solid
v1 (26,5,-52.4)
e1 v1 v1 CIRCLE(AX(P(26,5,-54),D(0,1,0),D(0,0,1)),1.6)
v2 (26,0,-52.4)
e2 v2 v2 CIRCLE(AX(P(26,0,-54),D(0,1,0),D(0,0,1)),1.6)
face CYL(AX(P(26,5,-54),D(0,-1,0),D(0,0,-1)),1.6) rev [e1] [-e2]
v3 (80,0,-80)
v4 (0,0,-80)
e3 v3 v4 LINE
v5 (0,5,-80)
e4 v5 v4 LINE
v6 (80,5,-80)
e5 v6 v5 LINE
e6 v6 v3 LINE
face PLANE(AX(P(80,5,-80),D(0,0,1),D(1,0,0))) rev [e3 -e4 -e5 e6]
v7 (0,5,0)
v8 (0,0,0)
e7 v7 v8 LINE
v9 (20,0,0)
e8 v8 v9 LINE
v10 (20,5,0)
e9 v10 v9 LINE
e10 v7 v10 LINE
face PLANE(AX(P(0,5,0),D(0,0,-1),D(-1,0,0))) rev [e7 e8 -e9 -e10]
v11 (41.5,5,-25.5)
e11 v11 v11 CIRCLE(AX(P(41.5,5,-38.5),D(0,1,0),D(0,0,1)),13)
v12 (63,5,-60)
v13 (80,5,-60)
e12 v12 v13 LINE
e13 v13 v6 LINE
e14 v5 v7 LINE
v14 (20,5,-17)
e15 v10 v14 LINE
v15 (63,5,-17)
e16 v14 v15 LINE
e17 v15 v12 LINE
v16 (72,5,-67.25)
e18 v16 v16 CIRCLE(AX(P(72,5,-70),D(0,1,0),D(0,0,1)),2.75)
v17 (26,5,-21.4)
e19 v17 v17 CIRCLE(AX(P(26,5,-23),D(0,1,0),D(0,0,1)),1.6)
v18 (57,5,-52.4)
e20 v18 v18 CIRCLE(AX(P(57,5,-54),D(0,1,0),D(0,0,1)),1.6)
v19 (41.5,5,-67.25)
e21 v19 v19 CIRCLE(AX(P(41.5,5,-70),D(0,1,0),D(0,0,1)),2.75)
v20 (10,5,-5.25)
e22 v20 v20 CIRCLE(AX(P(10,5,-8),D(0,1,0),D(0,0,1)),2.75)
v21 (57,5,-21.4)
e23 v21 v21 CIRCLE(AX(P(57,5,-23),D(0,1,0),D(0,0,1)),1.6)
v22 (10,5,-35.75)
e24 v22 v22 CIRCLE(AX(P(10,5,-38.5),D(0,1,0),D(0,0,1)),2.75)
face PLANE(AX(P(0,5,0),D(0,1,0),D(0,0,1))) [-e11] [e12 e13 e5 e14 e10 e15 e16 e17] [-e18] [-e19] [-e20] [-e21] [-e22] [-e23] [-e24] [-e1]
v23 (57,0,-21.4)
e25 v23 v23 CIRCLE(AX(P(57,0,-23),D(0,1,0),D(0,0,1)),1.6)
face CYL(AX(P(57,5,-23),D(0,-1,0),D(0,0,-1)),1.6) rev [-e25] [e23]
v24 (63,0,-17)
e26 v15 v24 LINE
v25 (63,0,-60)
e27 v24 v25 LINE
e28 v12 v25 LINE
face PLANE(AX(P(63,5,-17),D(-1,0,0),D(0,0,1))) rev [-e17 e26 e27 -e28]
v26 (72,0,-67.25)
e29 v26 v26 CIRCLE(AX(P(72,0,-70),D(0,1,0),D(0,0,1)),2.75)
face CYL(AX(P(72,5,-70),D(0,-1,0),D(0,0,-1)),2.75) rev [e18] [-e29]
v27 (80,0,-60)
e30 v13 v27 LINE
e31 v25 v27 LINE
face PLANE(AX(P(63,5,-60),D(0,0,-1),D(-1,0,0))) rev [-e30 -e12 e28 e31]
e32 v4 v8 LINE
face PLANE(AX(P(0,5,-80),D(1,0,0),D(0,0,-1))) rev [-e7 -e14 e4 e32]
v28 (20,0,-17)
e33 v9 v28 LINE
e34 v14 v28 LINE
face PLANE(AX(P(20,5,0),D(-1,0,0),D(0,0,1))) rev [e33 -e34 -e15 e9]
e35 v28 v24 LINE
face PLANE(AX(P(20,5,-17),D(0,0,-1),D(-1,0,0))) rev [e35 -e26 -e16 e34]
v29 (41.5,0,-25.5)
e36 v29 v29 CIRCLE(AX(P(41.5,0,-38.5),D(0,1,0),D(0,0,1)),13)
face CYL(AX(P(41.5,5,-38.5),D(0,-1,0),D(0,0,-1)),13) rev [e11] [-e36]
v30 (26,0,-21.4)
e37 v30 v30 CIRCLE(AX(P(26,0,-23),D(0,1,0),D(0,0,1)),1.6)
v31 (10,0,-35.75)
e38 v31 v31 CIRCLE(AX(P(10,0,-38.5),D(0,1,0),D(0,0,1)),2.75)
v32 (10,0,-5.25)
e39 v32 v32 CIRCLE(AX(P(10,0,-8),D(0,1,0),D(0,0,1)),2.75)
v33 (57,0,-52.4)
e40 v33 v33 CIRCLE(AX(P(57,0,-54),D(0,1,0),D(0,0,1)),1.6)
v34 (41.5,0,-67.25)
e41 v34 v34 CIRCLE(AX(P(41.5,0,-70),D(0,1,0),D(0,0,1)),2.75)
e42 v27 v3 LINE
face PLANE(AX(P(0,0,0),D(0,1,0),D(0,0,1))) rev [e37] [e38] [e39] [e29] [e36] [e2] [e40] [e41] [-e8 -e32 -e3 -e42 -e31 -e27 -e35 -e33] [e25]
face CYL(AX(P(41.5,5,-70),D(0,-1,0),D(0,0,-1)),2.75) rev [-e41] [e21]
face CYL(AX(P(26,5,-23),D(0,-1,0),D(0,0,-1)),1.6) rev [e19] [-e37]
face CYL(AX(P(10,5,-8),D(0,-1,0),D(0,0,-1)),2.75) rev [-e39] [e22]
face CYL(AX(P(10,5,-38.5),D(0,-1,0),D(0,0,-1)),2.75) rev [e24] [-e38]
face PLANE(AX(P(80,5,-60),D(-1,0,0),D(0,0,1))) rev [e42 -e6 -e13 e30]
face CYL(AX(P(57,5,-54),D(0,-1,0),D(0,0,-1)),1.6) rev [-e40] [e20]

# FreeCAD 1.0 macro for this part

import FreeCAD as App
import Part
import Sketcher
Q = App.Units.Quantity

doc = App.newDocument("Part")
params = doc.addObject("Spreadsheet::Sheet", "Params")
for row, (alias, value) in enumerate([
    ("sketch1_diameter", "26 mm"),
    ("sketch1_diameter2", "5.5 mm"),
    ("sketch1_diameter3", "3.2 mm"),
    ("sketch1_width", "20 mm"),
    ("sketch1_width2", "43 mm"),
    ("pad1_length", "5 mm"),
], start=1):
    params.set(f"A{row}", alias)
    params.set(f"B{row}", "=" + value)
    params.setAlias(f"B{row}", alias)

body = doc.addObject("PartDesign::Body", "Body")

# Sketch on XZ plane
sketch1 = body.newObject("Sketcher::SketchObject", "Sketch")
sketch1.AttachmentSupport = (doc.getObject("XZ_Plane"), [""])
sketch1.MapMode = "FlatFace"
sketch1.addGeometry([
    Part.LineSegment(App.Vector(0, 0, 0), App.Vector(20, 0, 0)),  # 0
    Part.LineSegment(App.Vector(20, 0, 0), App.Vector(20, -17, 0)),  # 1
    Part.LineSegment(App.Vector(20, -17, 0), App.Vector(63, -17, 0)),  # 2
    Part.LineSegment(App.Vector(63, -17, 0), App.Vector(63, -60, 0)),  # 3
    Part.LineSegment(App.Vector(63, -60, 0), App.Vector(80, -60, 0)),  # 4
    Part.LineSegment(App.Vector(80, -60, 0), App.Vector(80, -80, 0)),  # 5
    Part.LineSegment(App.Vector(80, -80, 0), App.Vector(0, -80, 0)),  # 6
    Part.LineSegment(App.Vector(0, -80, 0), App.Vector(0, 0, 0)),  # 7
    Part.Circle(App.Vector(10, -8, 0), App.Vector(0, 0, 1), 2.75),  # 8
    Part.Circle(App.Vector(10, -38.5, 0), App.Vector(0, 0, 1), 2.75),  # 9
    Part.Circle(App.Vector(26, -23, 0), App.Vector(0, 0, 1), 1.6),  # 10
    Part.Circle(App.Vector(57, -23, 0), App.Vector(0, 0, 1), 1.6),  # 11
    Part.Circle(App.Vector(41.5, -38.5, 0), App.Vector(0, 0, 1), 13),  # 12
    Part.Circle(App.Vector(26, -54, 0), App.Vector(0, 0, 1), 1.6),  # 13
    Part.Circle(App.Vector(57, -54, 0), App.Vector(0, 0, 1), 1.6),  # 14
    Part.Circle(App.Vector(41.5, -70, 0), App.Vector(0, 0, 1), 2.75),  # 15
    Part.Circle(App.Vector(72, -70, 0), App.Vector(0, 0, 1), 2.75),  # 16
], False)
sketch1.addConstraint([
    Sketcher.Constraint("Coincident", 0, 2, 1, 1),
    Sketcher.Constraint("Coincident", 1, 2, 2, 1),
    Sketcher.Constraint("Coincident", 2, 2, 3, 1),
    Sketcher.Constraint("Coincident", 3, 2, 4, 1),
    Sketcher.Constraint("Coincident", 4, 2, 5, 1),
    Sketcher.Constraint("Coincident", 5, 2, 6, 1),
    Sketcher.Constraint("Coincident", 6, 2, 7, 1),
    Sketcher.Constraint("Coincident", 7, 2, 0, 1),
    Sketcher.Constraint("Horizontal", 0),
    Sketcher.Constraint("Vertical", 1),
    Sketcher.Constraint("Horizontal", 2),
    Sketcher.Constraint("Vertical", 3),
    Sketcher.Constraint("Horizontal", 4),
    Sketcher.Constraint("Vertical", 5),
    Sketcher.Constraint("Horizontal", 6),
    Sketcher.Constraint("Vertical", 7),
    Sketcher.Constraint("Coincident", 7, 2, -1, 1),
    Sketcher.Constraint("Equal", 8, 9),
    Sketcher.Constraint("Equal", 10, 11),
    Sketcher.Constraint("Equal", 11, 13),
    Sketcher.Constraint("Equal", 13, 14),
    Sketcher.Constraint("Equal", 9, 15),
    Sketcher.Constraint("Equal", 15, 16),
    Sketcher.Constraint("Horizontal", 10, 3, 11, 3),
    Sketcher.Constraint("Horizontal", 9, 3, 12, 3),
    Sketcher.Constraint("Horizontal", 13, 3, 14, 3),
    Sketcher.Constraint("Horizontal", 15, 3, 16, 3),
    Sketcher.Constraint("Vertical", 8, 3, 9, 3),
    Sketcher.Constraint("Vertical", 10, 3, 13, 3),
    Sketcher.Constraint("Vertical", 11, 3, 14, 3),
    Sketcher.Constraint("Vertical", 12, 3, 15, 3),
    Sketcher.Constraint("Equal", 4, 1),
    Sketcher.Constraint("Equal", 2, 3),
    Sketcher.Constraint("Equal", 0, 5),
    Sketcher.Constraint("Diameter", 12, Q("26 mm")),
    Sketcher.Constraint("Diameter", 8, Q("5.5 mm")),
    Sketcher.Constraint("Diameter", 10, Q("3.2 mm")),
    Sketcher.Constraint("DistanceX", 0, 1, 0, 2, Q("20 mm")),
    Sketcher.Constraint("DistanceX", 2, 1, 2, 2, Q("43 mm")),
    Sketcher.Constraint("DistanceX", 4, 1, 4, 2, Q("17 mm")),
    Sketcher.Constraint("DistanceX", -1, 1, 8, 3, Q("10 mm")),
    Sketcher.Constraint("DistanceY", 8, 3, -1, 1, Q("8 mm")),
    Sketcher.Constraint("DistanceX", -1, 1, 10, 3, Q("26 mm")),
    Sketcher.Constraint("DistanceY", 10, 3, -1, 1, Q("23 mm")),
    Sketcher.Constraint("DistanceX", -1, 1, 11, 3, Q("57 mm")),
    Sketcher.Constraint("DistanceY", 13, 3, -1, 1, Q("54 mm")),
    Sketcher.Constraint("DistanceY", 15, 3, -1, 1, Q("70 mm")),
    Sketcher.Constraint("DistanceX", -1, 1, 16, 3, Q("72 mm")),
    Sketcher.Constraint("DistanceY", 9, 3, -1, 1, Q("38.5 mm")),
    Sketcher.Constraint("DistanceX", -1, 1, 12, 3, Q("41.5 mm")),
])
sketch1.setExpression("Constraints[34]", "Params.sketch1_diameter")
sketch1.setExpression("Constraints[35]", "Params.sketch1_diameter2")
sketch1.setExpression("Constraints[36]", "Params.sketch1_diameter3")
sketch1.setExpression("Constraints[37]", "Params.sketch1_width")
sketch1.setExpression("Constraints[38]", "Params.sketch1_width2")
pad1 = body.newObject("PartDesign::Pad", "Pad")
pad1.Profile = sketch1
pad1.setExpression("Length", "Params.pad1_length")
pad1.Reversed = True

doc.recompute()
